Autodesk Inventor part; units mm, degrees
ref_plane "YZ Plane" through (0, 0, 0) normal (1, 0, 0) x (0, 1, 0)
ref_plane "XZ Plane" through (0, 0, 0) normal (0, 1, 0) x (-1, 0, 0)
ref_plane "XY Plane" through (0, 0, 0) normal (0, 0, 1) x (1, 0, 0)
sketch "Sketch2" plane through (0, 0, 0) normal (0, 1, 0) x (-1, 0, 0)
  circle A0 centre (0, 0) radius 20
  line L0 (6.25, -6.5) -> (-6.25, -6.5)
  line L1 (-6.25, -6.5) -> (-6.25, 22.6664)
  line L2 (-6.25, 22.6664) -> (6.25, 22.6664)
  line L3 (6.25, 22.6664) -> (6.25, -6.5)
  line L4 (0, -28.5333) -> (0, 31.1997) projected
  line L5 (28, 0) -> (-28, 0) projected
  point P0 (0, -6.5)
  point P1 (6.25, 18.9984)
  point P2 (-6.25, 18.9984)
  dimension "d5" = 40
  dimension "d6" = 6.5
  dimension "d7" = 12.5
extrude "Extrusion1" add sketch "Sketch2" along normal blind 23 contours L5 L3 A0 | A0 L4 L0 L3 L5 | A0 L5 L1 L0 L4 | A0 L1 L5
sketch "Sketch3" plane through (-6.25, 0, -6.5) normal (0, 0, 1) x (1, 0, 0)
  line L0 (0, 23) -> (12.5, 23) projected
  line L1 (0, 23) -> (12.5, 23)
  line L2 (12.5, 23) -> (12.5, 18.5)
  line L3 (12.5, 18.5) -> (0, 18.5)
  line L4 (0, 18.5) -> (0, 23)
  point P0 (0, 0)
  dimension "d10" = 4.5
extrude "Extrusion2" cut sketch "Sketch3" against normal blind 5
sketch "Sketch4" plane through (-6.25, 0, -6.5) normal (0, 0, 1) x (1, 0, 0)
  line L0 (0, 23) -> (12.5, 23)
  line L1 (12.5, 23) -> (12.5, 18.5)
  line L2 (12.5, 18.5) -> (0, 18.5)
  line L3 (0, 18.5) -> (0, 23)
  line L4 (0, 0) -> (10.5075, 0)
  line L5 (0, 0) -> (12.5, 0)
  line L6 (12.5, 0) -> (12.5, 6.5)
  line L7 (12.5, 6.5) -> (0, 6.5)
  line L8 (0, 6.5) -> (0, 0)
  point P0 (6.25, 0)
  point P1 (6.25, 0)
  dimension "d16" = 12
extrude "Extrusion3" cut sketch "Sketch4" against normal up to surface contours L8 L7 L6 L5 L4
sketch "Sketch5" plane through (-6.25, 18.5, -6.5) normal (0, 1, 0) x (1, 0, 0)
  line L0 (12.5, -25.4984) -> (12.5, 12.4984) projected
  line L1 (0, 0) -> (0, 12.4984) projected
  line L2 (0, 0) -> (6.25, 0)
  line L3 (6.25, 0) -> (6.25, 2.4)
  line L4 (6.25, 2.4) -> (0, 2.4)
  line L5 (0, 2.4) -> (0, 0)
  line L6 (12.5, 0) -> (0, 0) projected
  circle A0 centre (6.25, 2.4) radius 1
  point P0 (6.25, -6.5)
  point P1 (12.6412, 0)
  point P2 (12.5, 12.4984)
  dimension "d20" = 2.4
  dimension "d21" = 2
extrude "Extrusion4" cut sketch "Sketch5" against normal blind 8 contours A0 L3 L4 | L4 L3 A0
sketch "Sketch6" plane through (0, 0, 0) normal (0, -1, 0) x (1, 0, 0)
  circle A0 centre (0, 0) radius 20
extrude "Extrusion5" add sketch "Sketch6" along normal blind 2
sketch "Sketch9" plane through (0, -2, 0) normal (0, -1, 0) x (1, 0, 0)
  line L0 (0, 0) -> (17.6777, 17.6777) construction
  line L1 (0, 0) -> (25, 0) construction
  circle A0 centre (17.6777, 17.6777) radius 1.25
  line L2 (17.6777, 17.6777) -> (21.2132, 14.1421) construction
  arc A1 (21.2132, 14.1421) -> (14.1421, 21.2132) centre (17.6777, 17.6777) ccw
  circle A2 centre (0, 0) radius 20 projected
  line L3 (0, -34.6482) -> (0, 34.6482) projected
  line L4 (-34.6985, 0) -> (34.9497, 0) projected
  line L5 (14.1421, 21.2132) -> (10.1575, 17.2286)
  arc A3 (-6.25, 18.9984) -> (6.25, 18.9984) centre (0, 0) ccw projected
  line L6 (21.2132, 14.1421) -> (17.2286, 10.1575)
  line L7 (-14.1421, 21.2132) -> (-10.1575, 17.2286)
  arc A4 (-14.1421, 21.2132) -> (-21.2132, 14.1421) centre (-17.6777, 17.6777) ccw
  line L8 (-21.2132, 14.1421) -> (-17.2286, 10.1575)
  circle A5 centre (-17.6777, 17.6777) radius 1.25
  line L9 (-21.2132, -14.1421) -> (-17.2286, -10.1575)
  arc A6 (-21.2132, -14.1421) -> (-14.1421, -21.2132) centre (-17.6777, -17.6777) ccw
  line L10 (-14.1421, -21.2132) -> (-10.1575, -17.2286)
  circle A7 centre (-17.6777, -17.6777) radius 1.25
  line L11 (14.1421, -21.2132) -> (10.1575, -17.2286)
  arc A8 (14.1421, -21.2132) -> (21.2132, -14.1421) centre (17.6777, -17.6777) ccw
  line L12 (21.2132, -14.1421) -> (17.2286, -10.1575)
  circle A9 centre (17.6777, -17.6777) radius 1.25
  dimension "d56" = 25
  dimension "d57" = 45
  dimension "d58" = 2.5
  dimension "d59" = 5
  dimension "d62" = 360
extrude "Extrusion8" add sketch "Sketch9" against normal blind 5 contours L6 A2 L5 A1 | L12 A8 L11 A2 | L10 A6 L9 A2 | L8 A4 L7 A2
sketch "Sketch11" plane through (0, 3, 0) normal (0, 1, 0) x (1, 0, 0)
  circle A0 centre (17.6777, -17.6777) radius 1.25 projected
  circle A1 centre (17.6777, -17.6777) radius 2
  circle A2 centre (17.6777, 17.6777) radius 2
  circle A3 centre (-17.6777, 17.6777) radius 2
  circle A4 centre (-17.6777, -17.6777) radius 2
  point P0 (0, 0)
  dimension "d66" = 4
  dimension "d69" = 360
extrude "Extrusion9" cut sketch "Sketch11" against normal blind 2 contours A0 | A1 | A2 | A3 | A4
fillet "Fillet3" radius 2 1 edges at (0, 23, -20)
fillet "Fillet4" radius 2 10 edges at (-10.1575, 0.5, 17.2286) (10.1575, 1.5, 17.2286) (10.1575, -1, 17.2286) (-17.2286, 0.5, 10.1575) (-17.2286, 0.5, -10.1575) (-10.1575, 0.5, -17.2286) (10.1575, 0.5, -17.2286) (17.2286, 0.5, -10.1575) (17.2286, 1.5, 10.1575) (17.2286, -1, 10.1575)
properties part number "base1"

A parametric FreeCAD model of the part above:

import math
import FreeCAD as App
import Part
import Sketcher
from FreeCAD import Vector


def edges_at(feature, points):
    """Names of the edges that pass closest to the given points."""
    edges = feature.Shape.Edges
    near = lambda p: min(range(len(edges)), key=lambda i: edges[i].distToShape(Part.Vertex(*p))[0])
    return sorted({f"Edge{near(p) + 1}" for p in points})


def add_polygon(sketch, points):
    """Adds a closed chain of lines whose ends are joined by coincident constraints."""
    first, n = sketch.GeometryCount, len(points)
    for a, b in zip(points, points[1:] + points[:1]):
        sketch.addGeometry(Part.LineSegment(App.Vector(*a, 0), App.Vector(*b, 0)), False)
    for i in range(n):
        sketch.addConstraint(Sketcher.Constraint("Coincident", first + i, 2, first + (i + 1) % n, 1))

doc = App.newDocument("Part")
body = doc.addObject("PartDesign::Body", "Body")

# Sketch on XZ plane
sketch1 = body.newObject("Sketcher::SketchObject", "Sketch")
sketch1.AttachmentSupport = (doc.getObject("XZ_Plane"), [""])
sketch1.MapMode = "FlatFace"
sketch1.addGeometry([
    Part.LineSegment(Vector(-6, 19, 0), Vector(-6, -6, 0)),
    Part.LineSegment(Vector(-6, -6, 0), Vector(6, -6, 0)),
    Part.LineSegment(Vector(6, -6, 0), Vector(6, 19, 0)),
    Part.ArcOfCircle(Part.Circle(Vector(0, 0, 0), Vector(0, 0, 1), 20), math.radians(108), math.radians(432)),
], False)
sketch1.addConstraint([
    Sketcher.Constraint("Coincident", 0, 2, 1, 1),
    Sketcher.Constraint("Coincident", 1, 2, 2, 1),
    Sketcher.Constraint("Coincident", 2, 2, 3, 2),
    Sketcher.Constraint("Coincident", 3, 1, 0, 1),
    Sketcher.Constraint("Vertical", 0),
    Sketcher.Constraint("Horizontal", 1),
    Sketcher.Constraint("Vertical", 2),
    Sketcher.Constraint("Coincident", 3, 3, -1, 1),
    Sketcher.Constraint("Horizontal", 2, 2, 3, 1),
    Sketcher.Constraint("Radius", 3, 20.0),
    Sketcher.Constraint("DistanceX", 1, 1, 1, 2, 12.5),
    Sketcher.Constraint("DistanceY", 0, 2, -1, 1, 6.5),
])
pad1 = body.newObject("PartDesign::Pad", "Pad")
pad1.Profile = sketch1
pad1.Length = 23
pad1.Reversed = True

# Sketch on XY plane
sketch2 = body.newObject("Sketcher::SketchObject", "Sketch001")
sketch2.AttachmentSupport = (doc.getObject("XY_Plane"), [""])
sketch2.MapMode = "FlatFace"
sketch2.AttachmentOffset = App.Placement(Vector(0, 0, -6.5), App.Rotation())
add_polygon(sketch2, [(6.2, 23), (-6.2, 23), (-6.2, 18.5), (6.2, 18.5)])  # lines 0-3
sketch2.addConstraint([
    Sketcher.Constraint("Horizontal", 0),
    Sketcher.Constraint("Vertical", 1),
    Sketcher.Constraint("Horizontal", 2),
    Sketcher.Constraint("Vertical", 3),
    Sketcher.Constraint("DistanceY", 1, 2, 1, 1, 4.5),
    Sketcher.Constraint("DistanceX", 0, 2, 0, 1, 12.5),
    Sketcher.Constraint("DistanceY", -1, 1, 0, 2, 23.0),
    Sketcher.Constraint("DistanceX", 0, 2, -1, 1, 6.25),
])
pocket1 = body.newObject("PartDesign::Pocket", "Pocket")
pocket1.Profile = sketch2
pocket1.Length = 5

# Sketch on XY plane
sketch3 = body.newObject("Sketcher::SketchObject", "Sketch002")
sketch3.AttachmentSupport = (doc.getObject("XY_Plane"), [""])
sketch3.MapMode = "FlatFace"
sketch3.AttachmentOffset = App.Placement(Vector(0, 0, -6.5), App.Rotation())
add_polygon(sketch3, [(-6, 6), (-6, 0), (6, 0), (6, 6)])  # lines 0-3
sketch3.addConstraint([
    Sketcher.Constraint("Vertical", 0),
    Sketcher.Constraint("Horizontal", 1),
    Sketcher.Constraint("Vertical", 2),
    Sketcher.Constraint("Horizontal", 3),
    Sketcher.Constraint("Symmetric", 0, 2, 1, 2, -1, 1),
    Sketcher.Constraint("DistanceX", 1, 1, 1, 2, 12.5),
    Sketcher.Constraint("DistanceY", 0, 2, 0, 1, 6.5),
])
pocket2 = body.newObject("PartDesign::Pocket", "Pocket001")
pocket2.Profile = sketch3
pocket2.Type = "UpToFirst"

# Sketch on XZ plane
sketch4 = body.newObject("Sketcher::SketchObject", "Sketch003")
sketch4.AttachmentSupport = (doc.getObject("XZ_Plane"), [""])
sketch4.MapMode = "FlatFace"
sketch4.AttachmentOffset = App.Placement(Vector(0, 0, -18.5), App.Rotation())
sketch4.addGeometry(Part.Circle(Vector(0, -8.9, 0), Vector(0, 0, 1), 1), False)
sketch4.addConstraint([
    Sketcher.Constraint("PointOnObject", 0, 3, -2),
    Sketcher.Constraint("Diameter", 0, 2.0),
    Sketcher.Constraint("DistanceY", 0, 3, -1, 1, 8.9),
])
pocket3 = body.newObject("PartDesign::Pocket", "Pocket002")
pocket3.Profile = sketch4
pocket3.Length = 8
pocket3.Reversed = True

# Sketch on XZ plane
sketch5 = body.newObject("Sketcher::SketchObject", "Sketch004")
sketch5.AttachmentSupport = (doc.getObject("XZ_Plane"), [""])
sketch5.MapMode = "FlatFace"
sketch5.addGeometry(Part.Circle(Vector(0, 0, 0), Vector(0, 0, 1), 20), False)
sketch5.addConstraint([
    Sketcher.Constraint("Coincident", 0, 3, -1, 1),
    Sketcher.Constraint("Diameter", 0, 40.0),
])
pad2 = body.newObject("PartDesign::Pad", "Pad001")
pad2.Profile = sketch5
pad2.Length = 2

# Sketch on XZ plane
sketch6 = body.newObject("Sketcher::SketchObject", "Sketch005")
sketch6.AttachmentSupport = (doc.getObject("XZ_Plane"), [""])
sketch6.MapMode = "FlatFace"
sketch6.AttachmentOffset = App.Placement(Vector(0, 0, 2), App.Rotation())
sketch6.addGeometry([
    Part.LineSegment(Vector(17.2, 10.2, 0), Vector(21.2, 14.1, 0)),  # 0
    Part.ArcOfCircle(Part.Circle(Vector(17.7, 17.7, 0), Vector(0, 0, 1), 5), math.radians(-45), math.radians(135)),  # 1
    Part.LineSegment(Vector(14.1, 21.2, 0), Vector(10.2, 17.2, 0)),  # 2
    Part.ArcOfCircle(Part.Circle(Vector(0, 0, 0), Vector(0, 0, 1), 20), math.radians(31), math.radians(59)),  # 3
    Part.Circle(Vector(17.7, 17.7, 0), Vector(0, 0, 1), 1.2),  # 4
    Part.LineSegment(Vector(21.2, -14.1, 0), Vector(17.2, -10.2, 0)),  # 5
    Part.ArcOfCircle(Part.Circle(Vector(0, 0, 0), Vector(0, 0, 1), 20), math.radians(-59), math.radians(-31)),  # 6
    Part.LineSegment(Vector(10.2, -17.2, 0), Vector(14.1, -21.2, 0)),  # 7
    Part.ArcOfCircle(Part.Circle(Vector(17.7, -17.7, 0), Vector(0, 0, 1), 5), math.radians(-135), math.radians(45)),  # 8
    Part.Circle(Vector(17.7, -17.7, 0), Vector(0, 0, 1), 1.2),  # 9
    Part.LineSegment(Vector(-14.1, -21.2, 0), Vector(-10.2, -17.2, 0)),  # 10
    Part.ArcOfCircle(Part.Circle(Vector(0, 0, 0), Vector(0, 0, 1), 20), math.radians(-149), math.radians(-121)),  # 11
    Part.LineSegment(Vector(-17.2, -10.2, 0), Vector(-21.2, -14.1, 0)),  # 12
    Part.ArcOfCircle(Part.Circle(Vector(-17.7, -17.7, 0), Vector(0, 0, 1), 5), math.radians(135), math.radians(315)),  # 13
    Part.Circle(Vector(-17.7, -17.7, 0), Vector(0, 0, 1), 1.2),  # 14
    Part.LineSegment(Vector(-21.2, 14.1, 0), Vector(-17.2, 10.2, 0)),  # 15
    Part.ArcOfCircle(Part.Circle(Vector(0, 0, 0), Vector(0, 0, 1), 20), math.radians(121), math.radians(149)),  # 16
    Part.LineSegment(Vector(-10.2, 17.2, 0), Vector(-14.1, 21.2, 0)),  # 17
    Part.ArcOfCircle(Part.Circle(Vector(-17.7, 17.7, 0), Vector(0, 0, 1), 5), math.radians(45), math.radians(225)),  # 18
    Part.Circle(Vector(-17.7, 17.7, 0), Vector(0, 0, 1), 1.2),  # 19
], False)
sketch6.addConstraint([
    Sketcher.Constraint("Tangent", 0, 2, 1, 1),
    Sketcher.Constraint("Tangent", 1, 2, 2, 1),
    Sketcher.Constraint("Coincident", 2, 2, 3, 2),
    Sketcher.Constraint("Coincident", 3, 1, 0, 1),
    Sketcher.Constraint("Coincident", 5, 2, 6, 2),
    Sketcher.Constraint("Coincident", 6, 1, 7, 1),
    Sketcher.Constraint("Tangent", 7, 2, 8, 1),
    Sketcher.Constraint("Tangent", 8, 2, 5, 1),
    Sketcher.Constraint("Coincident", 10, 2, 11, 2),
    Sketcher.Constraint("Coincident", 11, 1, 12, 1),
    Sketcher.Constraint("Tangent", 12, 2, 13, 1),
    Sketcher.Constraint("Tangent", 13, 2, 10, 1),
    Sketcher.Constraint("Coincident", 15, 2, 16, 2),
    Sketcher.Constraint("Coincident", 16, 1, 17, 1),
    Sketcher.Constraint("Tangent", 17, 2, 18, 1),
    Sketcher.Constraint("Tangent", 18, 2, 15, 1),
    Sketcher.Constraint("Coincident", 3, 3, -1, 1),
    Sketcher.Constraint("Coincident", 6, 3, -1, 1),
    Sketcher.Constraint("Coincident", 11, 3, -1, 1),
    Sketcher.Constraint("Coincident", 16, 3, -1, 1),
    Sketcher.Constraint("Coincident", 4, 3, 1, 3),
    Sketcher.Constraint("Coincident", 9, 3, 8, 3),
    Sketcher.Constraint("Coincident", 14, 3, 13, 3),
    Sketcher.Constraint("Coincident", 19, 3, 18, 3),
    Sketcher.Constraint("Equal", 3, 6),
    Sketcher.Constraint("Equal", 1, 8),
    Sketcher.Constraint("Equal", 4, 9),
    Sketcher.Constraint("Equal", 6, 11),
    Sketcher.Constraint("Equal", 8, 13),
    Sketcher.Constraint("Equal", 9, 14),
    Sketcher.Constraint("Equal", 11, 16),
    Sketcher.Constraint("Equal", 13, 18),
    Sketcher.Constraint("Equal", 14, 19),
    Sketcher.Constraint("Symmetric", 1, 3, 13, 3, -1, 1),
    Sketcher.Constraint("Symmetric", 8, 3, 18, 3, -1, 1),
    Sketcher.Constraint("Symmetric", 8, 3, 13, 3, -2),
    Sketcher.Constraint("Parallel", 0, 2),
    Sketcher.Constraint("Perpendicular", 2, 5),
    Sketcher.Constraint("Parallel", 5, 7),
    Sketcher.Constraint("Perpendicular", 7, 10),
    Sketcher.Constraint("Parallel", 10, 12),
    Sketcher.Constraint("Perpendicular", 12, 15),
    Sketcher.Constraint("Parallel", 15, 17),
    Sketcher.Constraint("Horizontal", 6, 1, 10, 2),
    Sketcher.Constraint("Equal", 0, 2),
    Sketcher.Constraint("Radius", 1, 5.0),
    Sketcher.Constraint("Diameter", 4, 2.5),
    Sketcher.Constraint("Radius", 3, 20.0),
    Sketcher.Constraint("Distance", 0, 5.635),
])
pad3 = body.newObject("PartDesign::Pad", "Pad002")
pad3.Profile = sketch6
pad3.Length = 5
pad3.Reversed = True

# Sketch on XZ plane
sketch7 = body.newObject("Sketcher::SketchObject", "Sketch006")
sketch7.AttachmentSupport = (doc.getObject("XZ_Plane"), [""])
sketch7.MapMode = "FlatFace"
sketch7.AttachmentOffset = App.Placement(Vector(0, 0, -3), App.Rotation())
sketch7.addGeometry([
    Part.Circle(Vector(17.7, 17.7, 0), Vector(0, 0, 1), 2),
    Part.Circle(Vector(17.7, -17.7, 0), Vector(0, 0, 1), 2),
    Part.Circle(Vector(-17.7, -17.7, 0), Vector(0, 0, 1), 2),
    Part.Circle(Vector(-17.7, 17.7, 0), Vector(0, 0, 1), 2),
], False)
sketch7.addConstraint([
    Sketcher.Constraint("Equal", 0, 1),
    Sketcher.Constraint("Equal", 1, 2),
    Sketcher.Constraint("Equal", 2, 3),
    Sketcher.Constraint("Symmetric", 0, 3, 2, 3, -1, 1),
    Sketcher.Constraint("Symmetric", 1, 3, 3, 3, -1, 1),
    Sketcher.Constraint("Symmetric", 1, 3, 2, 3, -2),
    Sketcher.Constraint("Diameter", 0, 4.0),
    Sketcher.Constraint("DistanceX", -1, 1, 0, 3, 17.6777),
    Sketcher.Constraint("DistanceY", -1, 1, 0, 3, 17.6777),
])
pocket4 = body.newObject("PartDesign::Pocket", "Pocket003")
pocket4.Profile = sketch7
pocket4.Length = 2
pocket4.Reversed = True
doc.recompute()

fillet = body.newObject("PartDesign::Fillet", "Fillet")
fillet.Base = (pocket4, edges_at(pocket4, [(0, 23, -20)]))
fillet.Radius = 2
doc.recompute()

fillet2 = body.newObject("PartDesign::Fillet", "Fillet001")
fillet2.Base = (fillet, edges_at(fillet, [
    (-10.158, 0.5, 17.229),
    (10.158, 1.5, 17.229),
    (10.158, -1, 17.229),
    (-17.229, 0.5, 10.158),
    (-17.229, 0.5, -10.158),
    (-10.158, 0.5, -17.229),
    (10.158, 0.5, -17.229),
    (17.229, 0.5, -10.158),
    (17.229, 1.5, 10.158),
    (17.229, -1, 10.158),
]))
fillet2.Radius = 2

doc.recompute()
